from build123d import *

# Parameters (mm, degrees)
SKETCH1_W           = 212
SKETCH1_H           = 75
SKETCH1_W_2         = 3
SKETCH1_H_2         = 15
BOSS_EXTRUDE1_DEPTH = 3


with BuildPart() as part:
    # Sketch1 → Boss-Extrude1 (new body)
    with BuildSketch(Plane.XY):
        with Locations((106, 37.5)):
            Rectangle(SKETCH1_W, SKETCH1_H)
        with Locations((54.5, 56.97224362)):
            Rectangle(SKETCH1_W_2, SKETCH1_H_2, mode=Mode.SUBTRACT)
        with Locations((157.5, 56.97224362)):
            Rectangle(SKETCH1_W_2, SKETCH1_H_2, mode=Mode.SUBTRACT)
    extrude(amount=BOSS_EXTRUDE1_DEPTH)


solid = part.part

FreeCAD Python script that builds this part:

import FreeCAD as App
import Part
import Sketcher

doc = App.newDocument("Part")
body = doc.addObject("PartDesign::Body", "Body")

# Sketch on XY plane
sketch1 = doc.addObject("Sketcher::SketchObject", "Sketch")
body.addObject(sketch1)
sketch1.AttachmentSupport = (doc.XY_Plane, [""])
sketch1.MapMode = "FlatFace"
sketch1.addGeometry([
    Part.LineSegment(App.Vector(0, 75, 0), App.Vector(0, 0, 0)),  # 0
    Part.LineSegment(App.Vector(0, 0, 0), App.Vector(212, 0, 0)),  # 1
    Part.LineSegment(App.Vector(212, 0, 0), App.Vector(212, 75, 0)),  # 2
    Part.LineSegment(App.Vector(212, 75, 0), App.Vector(0, 75, 0)),  # 3
    Part.LineSegment(App.Vector(56, 49.472244, 0), App.Vector(53, 49.472244, 0)),  # 4
    Part.LineSegment(App.Vector(53, 49.472244, 0), App.Vector(53, 64.472244, 0)),  # 5
    Part.LineSegment(App.Vector(53, 64.472244, 0), App.Vector(56, 64.472244, 0)),  # 6
    Part.LineSegment(App.Vector(56, 64.472244, 0), App.Vector(56, 49.472244, 0)),  # 7
    Part.LineSegment(App.Vector(159, 49.472244, 0), App.Vector(156, 49.472244, 0)),  # 8
    Part.LineSegment(App.Vector(156, 49.472244, 0), App.Vector(156, 64.472244, 0)),  # 9
    Part.LineSegment(App.Vector(156, 64.472244, 0), App.Vector(159, 64.472244, 0)),  # 10
    Part.LineSegment(App.Vector(159, 64.472244, 0), App.Vector(159, 49.472244, 0)),  # 11
], False)
sketch1.addConstraint([
    Sketcher.Constraint("Coincident", 0, 2, 1, 1),
    Sketcher.Constraint("Coincident", 1, 2, 2, 1),
    Sketcher.Constraint("Coincident", 2, 2, 3, 1),
    Sketcher.Constraint("Coincident", 3, 2, 0, 1),
    Sketcher.Constraint("Coincident", 4, 2, 5, 1),
    Sketcher.Constraint("Coincident", 5, 2, 6, 1),
    Sketcher.Constraint("Coincident", 6, 2, 7, 1),
    Sketcher.Constraint("Coincident", 7, 2, 4, 1),
    Sketcher.Constraint("Coincident", 8, 2, 9, 1),
    Sketcher.Constraint("Coincident", 9, 2, 10, 1),
    Sketcher.Constraint("Coincident", 10, 2, 11, 1),
    Sketcher.Constraint("Coincident", 11, 2, 8, 1),
    Sketcher.Constraint("Vertical", 0),
    Sketcher.Constraint("Horizontal", 1),
    Sketcher.Constraint("Vertical", 2),
    Sketcher.Constraint("Horizontal", 3),
    Sketcher.Constraint("Horizontal", 4),
    Sketcher.Constraint("Vertical", 5),
    Sketcher.Constraint("Horizontal", 6),
    Sketcher.Constraint("Vertical", 7),
    Sketcher.Constraint("Horizontal", 8),
    Sketcher.Constraint("Vertical", 9),
    Sketcher.Constraint("Horizontal", 10),
    Sketcher.Constraint("Vertical", 11),
    Sketcher.Constraint("Coincident", 0, 2, -1, 1),
    Sketcher.Constraint("Horizontal", 7, 2, 8, 2),
    Sketcher.Constraint("Horizontal", 6, 2, 9, 2),
    Sketcher.Constraint("Equal", 6, 8),
    Sketcher.Constraint("DistanceX", 1, 1, 1, 2, 212.0),
    Sketcher.Constraint("DistanceX", 4, 2, 4, 1, 3.0),
    Sketcher.Constraint("DistanceY", 0, 2, 0, 1, 75.0),
    Sketcher.Constraint("DistanceY", 5, 1, 5, 2, 15.0),
    Sketcher.Constraint("DistanceX", -1, 1, 4, 2, 53.0),
    Sketcher.Constraint("DistanceX", -1, 1, 8, 2, 156.0),
    Sketcher.Constraint("DistanceY", -1, 1, 4, 2, 49.472244),
])
pad1 = doc.addObject("PartDesign::Pad", "Pad")
body.addObject(pad1)
pad1.Profile = sketch1
pad1.Length = 3

doc.recompute()
